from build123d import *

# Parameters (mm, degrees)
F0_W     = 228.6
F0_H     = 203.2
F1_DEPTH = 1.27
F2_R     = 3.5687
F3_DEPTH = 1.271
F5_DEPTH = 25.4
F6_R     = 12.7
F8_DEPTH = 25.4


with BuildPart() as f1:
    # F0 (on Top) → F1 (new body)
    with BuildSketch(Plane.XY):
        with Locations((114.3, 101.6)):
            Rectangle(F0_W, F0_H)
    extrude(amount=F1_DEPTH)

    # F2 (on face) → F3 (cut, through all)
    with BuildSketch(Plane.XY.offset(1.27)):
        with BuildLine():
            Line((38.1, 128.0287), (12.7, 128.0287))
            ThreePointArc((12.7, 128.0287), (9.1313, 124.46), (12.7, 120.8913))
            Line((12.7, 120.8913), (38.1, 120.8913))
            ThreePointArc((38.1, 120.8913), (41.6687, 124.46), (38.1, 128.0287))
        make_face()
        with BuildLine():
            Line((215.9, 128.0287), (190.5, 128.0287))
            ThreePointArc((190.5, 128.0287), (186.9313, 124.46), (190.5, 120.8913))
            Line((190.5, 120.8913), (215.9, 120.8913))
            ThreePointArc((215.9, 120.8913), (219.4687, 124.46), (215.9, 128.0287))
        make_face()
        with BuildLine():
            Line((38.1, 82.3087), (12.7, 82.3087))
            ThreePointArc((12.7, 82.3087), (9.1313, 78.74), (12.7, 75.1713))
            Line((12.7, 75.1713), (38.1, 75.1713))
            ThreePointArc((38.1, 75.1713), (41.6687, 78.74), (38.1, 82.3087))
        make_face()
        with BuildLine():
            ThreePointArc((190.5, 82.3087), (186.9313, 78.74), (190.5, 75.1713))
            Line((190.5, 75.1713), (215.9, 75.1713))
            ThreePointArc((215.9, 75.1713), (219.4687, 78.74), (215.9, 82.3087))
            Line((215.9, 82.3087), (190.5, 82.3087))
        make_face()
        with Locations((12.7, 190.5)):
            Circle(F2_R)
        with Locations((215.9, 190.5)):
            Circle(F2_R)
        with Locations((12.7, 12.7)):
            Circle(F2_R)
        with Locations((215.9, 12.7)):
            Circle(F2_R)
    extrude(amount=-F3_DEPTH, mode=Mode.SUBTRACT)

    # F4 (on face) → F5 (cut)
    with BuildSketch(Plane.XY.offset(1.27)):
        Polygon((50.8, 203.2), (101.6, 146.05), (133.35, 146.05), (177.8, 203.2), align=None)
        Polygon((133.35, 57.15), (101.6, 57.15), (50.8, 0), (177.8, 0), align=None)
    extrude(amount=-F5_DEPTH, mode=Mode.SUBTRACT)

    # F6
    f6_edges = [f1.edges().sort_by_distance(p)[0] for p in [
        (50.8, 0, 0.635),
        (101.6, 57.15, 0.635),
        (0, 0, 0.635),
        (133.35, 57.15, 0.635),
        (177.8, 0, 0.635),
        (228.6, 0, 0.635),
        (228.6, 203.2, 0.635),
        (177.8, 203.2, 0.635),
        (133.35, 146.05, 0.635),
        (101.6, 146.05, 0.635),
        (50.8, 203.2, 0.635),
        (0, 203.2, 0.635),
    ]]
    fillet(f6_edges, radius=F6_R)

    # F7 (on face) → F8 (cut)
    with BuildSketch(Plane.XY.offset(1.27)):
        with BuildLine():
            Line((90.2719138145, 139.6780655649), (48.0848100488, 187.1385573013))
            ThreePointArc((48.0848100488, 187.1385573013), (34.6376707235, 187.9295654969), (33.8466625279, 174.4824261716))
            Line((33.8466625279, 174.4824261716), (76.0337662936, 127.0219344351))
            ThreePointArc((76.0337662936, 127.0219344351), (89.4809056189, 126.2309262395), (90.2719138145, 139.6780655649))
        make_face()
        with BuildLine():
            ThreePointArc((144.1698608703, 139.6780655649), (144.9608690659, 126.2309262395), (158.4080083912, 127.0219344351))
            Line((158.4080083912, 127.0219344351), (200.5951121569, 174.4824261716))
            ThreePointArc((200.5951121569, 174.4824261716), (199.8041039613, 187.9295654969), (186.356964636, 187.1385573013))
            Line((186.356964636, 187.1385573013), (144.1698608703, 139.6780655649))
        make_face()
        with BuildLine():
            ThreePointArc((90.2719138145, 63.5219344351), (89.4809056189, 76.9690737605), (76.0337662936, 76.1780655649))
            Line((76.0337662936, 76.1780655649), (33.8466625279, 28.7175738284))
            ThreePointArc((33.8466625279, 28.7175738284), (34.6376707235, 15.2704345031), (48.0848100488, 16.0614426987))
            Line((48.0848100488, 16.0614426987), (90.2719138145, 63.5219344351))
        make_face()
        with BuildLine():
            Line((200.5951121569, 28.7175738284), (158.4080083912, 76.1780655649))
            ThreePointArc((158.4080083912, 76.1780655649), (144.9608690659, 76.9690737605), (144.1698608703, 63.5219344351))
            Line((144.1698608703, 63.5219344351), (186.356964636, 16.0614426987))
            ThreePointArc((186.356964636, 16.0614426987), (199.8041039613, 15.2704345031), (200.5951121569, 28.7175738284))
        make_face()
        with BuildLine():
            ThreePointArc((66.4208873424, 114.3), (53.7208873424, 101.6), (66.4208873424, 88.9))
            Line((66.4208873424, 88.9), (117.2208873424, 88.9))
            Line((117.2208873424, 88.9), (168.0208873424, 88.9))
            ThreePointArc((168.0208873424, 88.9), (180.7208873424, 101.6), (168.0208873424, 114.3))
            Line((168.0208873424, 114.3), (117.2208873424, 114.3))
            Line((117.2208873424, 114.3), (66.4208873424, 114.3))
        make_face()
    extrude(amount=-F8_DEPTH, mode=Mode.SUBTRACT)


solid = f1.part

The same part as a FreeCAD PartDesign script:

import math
import FreeCAD as App
import Part
import Sketcher

V = App.Vector
Q = App.Units.Quantity


def edges_at(feature, points):
    """Names of the edges that pass closest to the given points."""
    edges = feature.Shape.Edges
    near = lambda p: min(range(len(edges)), key=lambda i: edges[i].distToShape(Part.Vertex(*p))[0])
    return sorted({f"Edge{near(p) + 1}" for p in points})


def add_polygon(sketch, points):
    """Adds a closed chain of lines whose ends are joined by coincident constraints."""
    first, n = sketch.GeometryCount, len(points)
    for a, b in zip(points, points[1:] + points[:1]):
        sketch.addGeometry(Part.LineSegment(App.Vector(*a, 0), App.Vector(*b, 0)), False)
    for i in range(n):
        sketch.addConstraint(Sketcher.Constraint("Coincident", first + i, 2, first + (i + 1) % n, 1))

doc = App.newDocument("Part")
body = doc.addObject("PartDesign::Body", "Body")

sketch1 = body.newObject("Sketcher::SketchObject", "Sketch")
sketch1.AttachmentSupport = (doc.getObject("XY_Plane"), [""])
sketch1.MapMode = "FlatFace"
add_polygon(sketch1, [(0, 203), (0, 0), (229, 0), (229, 203)])
sketch1.addConstraint([
    Sketcher.Constraint("Vertical", 0),
    Sketcher.Constraint("Horizontal", 1),
    Sketcher.Constraint("Vertical", 2),
    Sketcher.Constraint("Horizontal", 3),
    Sketcher.Constraint("Coincident", 0, 2, -1, 1),
    Sketcher.Constraint("DistanceX", 1, 1, 1, 2, Q("9 in")),
    Sketcher.Constraint("DistanceY", 0, 2, 0, 1, Q("8 in")),
])
pad1 = body.newObject("PartDesign::Pad", "Pad")
pad1.Profile = sketch1
pad1.Length = Q("0.05 in")

sketch2 = body.newObject("Sketcher::SketchObject", "Sketch001")
sketch2.AttachmentSupport = (doc.getObject("XY_Plane"), [""])
sketch2.MapMode = "FlatFace"
sketch2.AttachmentOffset = App.Placement(V(0, 0, 0.05 * 25.4), App.Rotation())
sketch2.addGeometry([
    Part.LineSegment(V(38.1, 128, 0), V(12.7, 128, 0)),
    Part.ArcOfCircle(Part.Circle(V(12.7, 124.5, 0), V(0, 0, 1), 3.6), math.radians(90), math.radians(270)),
    Part.LineSegment(V(12.7, 120.9, 0), V(38.1, 120.9, 0)),
    Part.ArcOfCircle(Part.Circle(V(38.1, 124.5, 0), V(0, 0, 1), 3.6), math.radians(-90), math.radians(90)),
    Part.LineSegment(V(215.9, 128, 0), V(190.5, 128, 0)),
    Part.ArcOfCircle(Part.Circle(V(190.5, 124.5, 0), V(0, 0, 1), 3.6), math.radians(90), math.radians(270)),
    Part.LineSegment(V(190.5, 120.9, 0), V(215.9, 120.9, 0)),
    Part.ArcOfCircle(Part.Circle(V(215.9, 124.5, 0), V(0, 0, 1), 3.6), math.radians(-90), math.radians(90)),
    Part.LineSegment(V(38.1, 82.3, 0), V(12.7, 82.3, 0)),
    Part.ArcOfCircle(Part.Circle(V(12.7, 78.7, 0), V(0, 0, 1), 3.6), math.radians(90), math.radians(270)),
    Part.LineSegment(V(12.7, 75.2, 0), V(38.1, 75.2, 0)),
    Part.ArcOfCircle(Part.Circle(V(38.1, 78.7, 0), V(0, 0, 1), 3.6), math.radians(-90), math.radians(90)),
    Part.ArcOfCircle(Part.Circle(V(190.5, 78.7, 0), V(0, 0, 1), 3.6), math.radians(90), math.radians(270)),
    Part.LineSegment(V(190.5, 75.2, 0), V(215.9, 75.2, 0)),
    Part.ArcOfCircle(Part.Circle(V(215.9, 78.7, 0), V(0, 0, 1), 3.6), math.radians(-90), math.radians(90)),
    Part.LineSegment(V(215.9, 82.3, 0), V(190.5, 82.3, 0)),
    Part.Circle(V(12.7, 190.5, 0), V(0, 0, 1), 3.6),
    Part.Circle(V(215.9, 190.5, 0), V(0, 0, 1), 3.6),
    Part.Circle(V(12.7, 12.7, 0), V(0, 0, 1), 3.6),
    Part.Circle(V(215.9, 12.7, 0), V(0, 0, 1), 3.6),
], False)
sketch2.addConstraint([
    Sketcher.Constraint("Tangent", 0, 2, 1, 1),
    Sketcher.Constraint("Tangent", 1, 2, 2, 1),
    Sketcher.Constraint("Tangent", 2, 2, 3, 1),
    Sketcher.Constraint("Tangent", 3, 2, 0, 1),
    Sketcher.Constraint("Tangent", 4, 2, 5, 1),
    Sketcher.Constraint("Tangent", 5, 2, 6, 1),
    Sketcher.Constraint("Tangent", 6, 2, 7, 1),
    Sketcher.Constraint("Tangent", 7, 2, 4, 1),
    Sketcher.Constraint("Tangent", 8, 2, 9, 1),
    Sketcher.Constraint("Tangent", 9, 2, 10, 1),
    Sketcher.Constraint("Tangent", 10, 2, 11, 1),
    Sketcher.Constraint("Tangent", 11, 2, 8, 1),
    Sketcher.Constraint("Tangent", 12, 2, 13, 1),
    Sketcher.Constraint("Tangent", 13, 2, 14, 1),
    Sketcher.Constraint("Tangent", 14, 2, 15, 1),
    Sketcher.Constraint("Tangent", 15, 2, 12, 1),
    Sketcher.Constraint("Horizontal", 0),
    Sketcher.Constraint("Horizontal", 2),
    Sketcher.Constraint("Horizontal", 4),
    Sketcher.Constraint("Horizontal", 6),
    Sketcher.Constraint("Horizontal", 8),
    Sketcher.Constraint("Horizontal", 10),
    Sketcher.Constraint("Horizontal", 13),
    Sketcher.Constraint("Horizontal", 15),
    Sketcher.Constraint("Equal", 3, 5),
    Sketcher.Constraint("Equal", 7, 9),
    Sketcher.Constraint("Equal", 11, 12),
    Sketcher.Constraint("Equal", 14, 16),
    Sketcher.Constraint("Equal", 16, 17),
    Sketcher.Constraint("Equal", 17, 18),
    Sketcher.Constraint("Equal", 18, 19),
    Sketcher.Constraint("Horizontal", 3, 3, 5, 3),
    Sketcher.Constraint("Horizontal", 11, 3, 12, 3),
    Sketcher.Constraint("Horizontal", 16, 3, 17, 3),
    Sketcher.Constraint("Horizontal", 18, 3, 19, 3),
    Sketcher.Constraint("Vertical", 1, 3, 9, 3),
    Sketcher.Constraint("Vertical", 3, 3, 11, 3),
    Sketcher.Constraint("Vertical", 5, 3, 12, 3),
    Sketcher.Constraint("Vertical", 7, 3, 14, 3),
    Sketcher.Constraint("Vertical", 9, 3, 16, 3),
    Sketcher.Constraint("Vertical", 14, 3, 17, 3),
    Sketcher.Constraint("Vertical", 16, 3, 18, 3),
    Sketcher.Constraint("Vertical", 17, 3, 19, 3),
    Sketcher.Constraint("Equal", 2, 4),
    Sketcher.Constraint("DistanceX", 0, 2, 0, 1, Q("1 in")),
    Sketcher.Constraint("Diameter", 16, Q("0.281 in")),
    Sketcher.Constraint("DistanceX", 3, 3, 5, 3, Q("6 in")),
    Sketcher.Constraint("DistanceY", 18, 3, 16, 3, Q("7 in")),
    Sketcher.Constraint("DistanceX", -1, 1, 1, 3, Q("0.5 in")),
    Sketcher.Constraint("DistanceY", -1, 1, 1, 3, Q("4.9 in")),
    Sketcher.Constraint("DistanceY", -1, 1, 9, 3, Q("3.1 in")),
    Sketcher.Constraint("DistanceY", -1, 1, 16, 3, Q("7.5 in")),
])
pocket1 = body.newObject("PartDesign::Pocket", "Pocket")
pocket1.Profile = sketch2
pocket1.Type = "ThroughAll"

sketch3 = body.newObject("Sketcher::SketchObject", "Sketch002")
sketch3.AttachmentSupport = (doc.getObject("XY_Plane"), [""])
sketch3.MapMode = "FlatFace"
sketch3.AttachmentOffset = App.Placement(V(0, 0, 0.05 * 25.4), App.Rotation())
add_polygon(sketch3, [(51, 203), (102, 146), (133, 146), (178, 203)])
add_polygon(sketch3, [(133, 57), (102, 57), (51, 0), (178, 0)])
sketch3.addConstraint([
    Sketcher.Constraint("Horizontal", 1),
    Sketcher.Constraint("Horizontal", 3),
    Sketcher.Constraint("Horizontal", 4),
    Sketcher.Constraint("Horizontal", 6),
    Sketcher.Constraint("PointOnObject", 5, 2, -1),
    Sketcher.Constraint("Vertical", 0, 2, 4, 2),
    Sketcher.Constraint("Vertical", 3, 2, 5, 2),
    Sketcher.Constraint("Vertical", 2, 2, 6, 2),
    Sketcher.Constraint("Vertical", 1, 2, 7, 2),
    Sketcher.Constraint("Equal", 0, 5),
    Sketcher.Constraint("DistanceX", 3, 2, 3, 1, Q("5 in")),
    Sketcher.Constraint("DistanceX", -1, 1, 0, 2, Q("4 in")),
    Sketcher.Constraint("DistanceX", -1, 1, 2, 2, Q("7 in")),
    Sketcher.Constraint("DistanceY", -1, 1, 2, 2, Q("8 in")),
    Sketcher.Constraint("DistanceX", 1, 1, 1, 2, Q("1.25 in")),
    Sketcher.Constraint("DistanceY", 4, 2, 0, 2, Q("3.5 in")),
])
pocket2 = body.newObject("PartDesign::Pocket", "Pocket001")
pocket2.Profile = sketch3
pocket2.Length = Q("1 in")
doc.recompute()

fillet = body.newObject("PartDesign::Fillet", "Fillet")
fillet.Base = (pocket2, edges_at(pocket2, [
    (50.8, 0, 0.635),
    (101.6, 57.15, 0.635),
    (0, 0, 0.635),
    (133.35, 57.15, 0.635),
    (177.8, 0, 0.635),
    (228.6, 0, 0.635),
    (228.6, 203.2, 0.635),
    (177.8, 203.2, 0.635),
    (133.35, 146.05, 0.635),
    (101.6, 146.05, 0.635),
    (50.8, 203.2, 0.635),
    (0, 203.2, 0.635),
]))
fillet.Radius = Q("0.5 in")

sketch4 = body.newObject("Sketcher::SketchObject", "Sketch003")
sketch4.AttachmentSupport = (doc.getObject("XY_Plane"), [""])
sketch4.MapMode = "FlatFace"
sketch4.AttachmentOffset = App.Placement(V(0, 0, 0.05 * 25.4), App.Rotation())
sketch4.addGeometry([
    Part.LineSegment(V(90, 140, 0), V(48, 187, 0)),
    Part.ArcOfCircle(Part.Circle(V(41, 181, 0), V(0, 0, 1), 10), math.radians(42), math.radians(222)),
    Part.LineSegment(V(34, 174, 0), V(76, 127, 0)),
    Part.ArcOfCircle(Part.Circle(V(83, 133, 0), V(0, 0, 1), 10), math.radians(-138), math.radians(42)),
    Part.ArcOfCircle(Part.Circle(V(151, 133, 0), V(0, 0, 1), 10), math.radians(138), math.radians(318)),
    Part.LineSegment(V(158, 127, 0), V(201, 174, 0)),
    Part.ArcOfCircle(Part.Circle(V(193, 181, 0), V(0, 0, 1), 10), math.radians(-42), math.radians(138)),
    Part.LineSegment(V(186, 187, 0), V(144, 140, 0)),
    Part.ArcOfCircle(Part.Circle(V(83, 70, 0), V(0, 0, 1), 10), math.radians(-42), math.radians(138)),
    Part.LineSegment(V(76, 76, 0), V(34, 29, 0)),
    Part.ArcOfCircle(Part.Circle(V(41, 22, 0), V(0, 0, 1), 10), math.radians(138), math.radians(318)),
    Part.LineSegment(V(48, 16, 0), V(90, 64, 0)),
    Part.LineSegment(V(201, 29, 0), V(158, 76, 0)),
    Part.ArcOfCircle(Part.Circle(V(151, 70, 0), V(0, 0, 1), 10), math.radians(42), math.radians(222)),
    Part.LineSegment(V(144, 64, 0), V(186, 16, 0)),
    Part.ArcOfCircle(Part.Circle(V(193, 22, 0), V(0, 0, 1), 10), math.radians(-138), math.radians(42)),
    Part.ArcOfCircle(Part.Circle(V(66, 102, 0), V(0, 0, 1), 13), math.radians(90), math.radians(270)),
    Part.LineSegment(V(66, 89, 0), V(168, 89, 0)),
    Part.ArcOfCircle(Part.Circle(V(168, 102, 0), V(0, 0, 1), 13), math.radians(-90), math.radians(90)),
    Part.LineSegment(V(168, 114, 0), V(66, 114, 0)),
], False)
sketch4.addConstraint([
    Sketcher.Constraint("Tangent", 0, 2, 1, 1),
    Sketcher.Constraint("Tangent", 1, 2, 2, 1),
    Sketcher.Constraint("Tangent", 2, 2, 3, 1),
    Sketcher.Constraint("Tangent", 3, 2, 0, 1),
    Sketcher.Constraint("Tangent", 4, 2, 5, 1),
    Sketcher.Constraint("Tangent", 5, 2, 6, 1),
    Sketcher.Constraint("Tangent", 6, 2, 7, 1),
    Sketcher.Constraint("Tangent", 7, 2, 4, 1),
    Sketcher.Constraint("Tangent", 8, 2, 9, 1),
    Sketcher.Constraint("Tangent", 9, 2, 10, 1),
    Sketcher.Constraint("Tangent", 10, 2, 11, 1),
    Sketcher.Constraint("Tangent", 11, 2, 8, 1),
    Sketcher.Constraint("Tangent", 12, 2, 13, 1),
    Sketcher.Constraint("Tangent", 13, 2, 14, 1),
    Sketcher.Constraint("Tangent", 14, 2, 15, 1),
    Sketcher.Constraint("Tangent", 15, 2, 12, 1),
    Sketcher.Constraint("Tangent", 16, 2, 17, 1),
    Sketcher.Constraint("Tangent", 17, 2, 18, 1),
    Sketcher.Constraint("Tangent", 18, 2, 19, 1),
    Sketcher.Constraint("Tangent", 19, 2, 16, 1),
    Sketcher.Constraint("Horizontal", 17),
    Sketcher.Constraint("Horizontal", 19),
    Sketcher.Constraint("Equal", 1, 3),
    Sketcher.Constraint("Equal", 3, 4),
    Sketcher.Constraint("Equal", 4, 6),
    Sketcher.Constraint("Equal", 6, 8),
    Sketcher.Constraint("Equal", 8, 10),
    Sketcher.Constraint("Equal", 10, 13),
    Sketcher.Constraint("Equal", 13, 15),
    Sketcher.Constraint("Parallel", 7, 9),
    Sketcher.Constraint("Parallel", 2, 12),
    Sketcher.Constraint("Horizontal", 3, 3, 4, 3),
    Sketcher.Constraint("Horizontal", 1, 3, 6, 3),
    Sketcher.Constraint("Horizontal", 8, 3, 13, 3),
    Sketcher.Constraint("Horizontal", 10, 3, 15, 3),
    Sketcher.Constraint("Horizontal", 2, 2, 4, 2),
    Sketcher.Constraint("Vertical", 3, 3, 8, 3),
    Sketcher.Constraint("Vertical", 1, 3, 10, 3),
    Sketcher.Constraint("Vertical", 4, 3, 13, 3),
    Sketcher.Constraint("Radius", 16, Q("0.5 in")),
    Sketcher.Constraint("DistanceX", 17, 1, 17, 2, Q("4 in")),
    Sketcher.Constraint("DistanceY", -1, 1, 16, 3, Q("4 in")),
    Sketcher.Constraint("Radius", 1, Q("0.375 in")),
    Sketcher.Constraint("Distance", 0, Q("2.5 in")),
    Sketcher.Constraint("DistanceY", 8, 3, 3, 3, Q("2.5 in")),
    Sketcher.Constraint("DistanceY", -1, 1, 3, 3, Q("5.25 in")),
    Sketcher.Constraint("DistanceX", 1, 3, 4, 3, 110.323198),
    Sketcher.Constraint("DistanceY", -1, 1, 1, 3, 180.810492),
    Sketcher.Constraint("DistanceX", -1, 1, 3, 3, 83.15284),
    Sketcher.Constraint("DistanceX", 1, 3, 16, 3, 25.455151),
])
pocket3 = body.newObject("PartDesign::Pocket", "Pocket002")
pocket3.Profile = sketch4
pocket3.Length = Q("1 in")

doc.recompute()
